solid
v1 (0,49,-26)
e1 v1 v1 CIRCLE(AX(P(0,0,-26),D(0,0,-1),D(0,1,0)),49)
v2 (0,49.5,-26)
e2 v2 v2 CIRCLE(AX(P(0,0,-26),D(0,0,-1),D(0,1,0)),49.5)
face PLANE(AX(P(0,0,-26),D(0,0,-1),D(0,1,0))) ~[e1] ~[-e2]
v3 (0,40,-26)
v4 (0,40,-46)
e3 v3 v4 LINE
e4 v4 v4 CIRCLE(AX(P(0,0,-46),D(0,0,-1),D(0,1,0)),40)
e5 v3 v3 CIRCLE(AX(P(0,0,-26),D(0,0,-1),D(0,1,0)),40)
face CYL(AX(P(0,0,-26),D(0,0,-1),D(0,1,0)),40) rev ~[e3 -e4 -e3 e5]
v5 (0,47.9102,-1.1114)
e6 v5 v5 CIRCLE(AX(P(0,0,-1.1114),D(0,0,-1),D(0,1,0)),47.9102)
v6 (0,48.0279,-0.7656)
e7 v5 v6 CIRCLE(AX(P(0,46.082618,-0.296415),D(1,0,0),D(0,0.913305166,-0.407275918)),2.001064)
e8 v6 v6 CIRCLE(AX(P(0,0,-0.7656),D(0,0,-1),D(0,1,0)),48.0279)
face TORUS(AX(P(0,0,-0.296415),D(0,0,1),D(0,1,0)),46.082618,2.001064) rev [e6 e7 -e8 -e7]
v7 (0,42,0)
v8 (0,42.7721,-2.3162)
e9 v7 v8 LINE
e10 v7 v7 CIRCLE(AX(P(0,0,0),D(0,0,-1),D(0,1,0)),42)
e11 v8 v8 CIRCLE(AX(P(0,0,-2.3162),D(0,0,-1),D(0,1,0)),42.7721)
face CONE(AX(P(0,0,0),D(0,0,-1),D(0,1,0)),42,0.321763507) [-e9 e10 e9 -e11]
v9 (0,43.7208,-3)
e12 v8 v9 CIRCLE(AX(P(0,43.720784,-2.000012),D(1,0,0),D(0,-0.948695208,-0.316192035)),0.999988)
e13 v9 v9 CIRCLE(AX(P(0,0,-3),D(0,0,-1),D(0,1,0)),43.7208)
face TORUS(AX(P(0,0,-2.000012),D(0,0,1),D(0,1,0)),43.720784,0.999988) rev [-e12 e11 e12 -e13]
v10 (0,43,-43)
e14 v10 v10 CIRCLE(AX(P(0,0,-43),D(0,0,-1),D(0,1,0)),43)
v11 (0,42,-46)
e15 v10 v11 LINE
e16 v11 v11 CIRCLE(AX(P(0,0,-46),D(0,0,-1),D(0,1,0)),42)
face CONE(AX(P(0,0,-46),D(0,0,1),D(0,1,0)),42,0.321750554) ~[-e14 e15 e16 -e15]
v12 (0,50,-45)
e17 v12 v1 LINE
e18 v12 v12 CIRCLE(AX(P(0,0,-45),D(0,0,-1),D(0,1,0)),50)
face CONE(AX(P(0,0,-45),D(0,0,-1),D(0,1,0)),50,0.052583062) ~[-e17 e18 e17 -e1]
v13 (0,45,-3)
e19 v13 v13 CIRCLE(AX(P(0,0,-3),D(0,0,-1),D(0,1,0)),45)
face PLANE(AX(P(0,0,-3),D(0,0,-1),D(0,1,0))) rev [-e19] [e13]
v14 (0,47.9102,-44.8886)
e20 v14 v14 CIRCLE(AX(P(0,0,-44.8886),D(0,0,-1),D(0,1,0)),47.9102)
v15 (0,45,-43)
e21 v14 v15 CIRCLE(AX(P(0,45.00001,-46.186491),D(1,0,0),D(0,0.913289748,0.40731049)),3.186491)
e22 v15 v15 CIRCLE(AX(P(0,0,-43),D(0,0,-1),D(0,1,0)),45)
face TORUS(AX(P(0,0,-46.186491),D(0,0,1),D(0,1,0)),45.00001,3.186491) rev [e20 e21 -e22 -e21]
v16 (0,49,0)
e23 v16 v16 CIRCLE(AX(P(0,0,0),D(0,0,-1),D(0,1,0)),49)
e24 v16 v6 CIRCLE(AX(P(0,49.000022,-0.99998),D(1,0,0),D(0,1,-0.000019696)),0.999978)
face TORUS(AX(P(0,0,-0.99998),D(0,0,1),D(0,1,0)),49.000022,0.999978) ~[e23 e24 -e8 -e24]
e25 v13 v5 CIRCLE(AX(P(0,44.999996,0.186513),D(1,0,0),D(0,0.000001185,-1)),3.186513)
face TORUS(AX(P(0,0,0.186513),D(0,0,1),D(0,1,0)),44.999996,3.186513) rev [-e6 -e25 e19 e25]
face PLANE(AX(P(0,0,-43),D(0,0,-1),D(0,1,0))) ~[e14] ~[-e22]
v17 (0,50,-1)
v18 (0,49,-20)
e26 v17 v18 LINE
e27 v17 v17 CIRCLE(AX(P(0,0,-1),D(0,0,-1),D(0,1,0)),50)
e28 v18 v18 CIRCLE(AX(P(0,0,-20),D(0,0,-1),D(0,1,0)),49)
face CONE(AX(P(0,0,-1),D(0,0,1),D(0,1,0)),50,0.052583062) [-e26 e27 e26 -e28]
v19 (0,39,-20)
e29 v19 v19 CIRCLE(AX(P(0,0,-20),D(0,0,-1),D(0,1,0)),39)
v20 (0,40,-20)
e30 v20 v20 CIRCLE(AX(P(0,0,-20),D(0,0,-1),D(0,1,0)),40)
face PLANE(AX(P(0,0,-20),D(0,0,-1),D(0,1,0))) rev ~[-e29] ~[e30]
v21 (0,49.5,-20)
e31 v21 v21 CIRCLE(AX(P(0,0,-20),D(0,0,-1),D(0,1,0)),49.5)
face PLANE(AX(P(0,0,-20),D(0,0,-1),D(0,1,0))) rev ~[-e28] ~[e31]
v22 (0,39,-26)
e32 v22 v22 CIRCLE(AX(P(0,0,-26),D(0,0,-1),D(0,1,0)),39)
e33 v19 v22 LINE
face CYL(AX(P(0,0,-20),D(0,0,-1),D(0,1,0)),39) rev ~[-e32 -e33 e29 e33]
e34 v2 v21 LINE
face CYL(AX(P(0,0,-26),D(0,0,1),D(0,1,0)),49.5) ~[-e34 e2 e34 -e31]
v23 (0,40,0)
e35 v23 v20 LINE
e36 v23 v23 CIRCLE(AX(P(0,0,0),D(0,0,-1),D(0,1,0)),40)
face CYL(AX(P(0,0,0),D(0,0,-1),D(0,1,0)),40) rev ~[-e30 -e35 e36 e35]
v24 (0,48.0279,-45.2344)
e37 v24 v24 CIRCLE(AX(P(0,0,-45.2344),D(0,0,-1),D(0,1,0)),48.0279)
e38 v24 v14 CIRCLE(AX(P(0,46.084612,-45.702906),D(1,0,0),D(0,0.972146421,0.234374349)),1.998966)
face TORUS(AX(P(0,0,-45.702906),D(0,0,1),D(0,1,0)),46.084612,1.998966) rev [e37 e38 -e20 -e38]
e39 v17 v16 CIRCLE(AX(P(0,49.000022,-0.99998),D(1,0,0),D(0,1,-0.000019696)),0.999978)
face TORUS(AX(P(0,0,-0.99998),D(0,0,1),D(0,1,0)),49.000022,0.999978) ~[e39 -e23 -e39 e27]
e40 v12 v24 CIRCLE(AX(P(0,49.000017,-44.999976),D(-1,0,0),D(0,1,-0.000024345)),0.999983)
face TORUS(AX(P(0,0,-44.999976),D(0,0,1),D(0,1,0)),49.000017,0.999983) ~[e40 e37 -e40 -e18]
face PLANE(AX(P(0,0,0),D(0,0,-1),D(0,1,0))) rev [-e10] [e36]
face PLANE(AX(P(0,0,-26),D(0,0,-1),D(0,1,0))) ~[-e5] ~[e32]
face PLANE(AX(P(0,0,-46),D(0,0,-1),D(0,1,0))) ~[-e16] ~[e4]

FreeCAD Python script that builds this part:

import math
import FreeCAD as App
import Part
import Sketcher
Q = App.Units.Quantity

doc = App.newDocument("Part")
body = doc.addObject("PartDesign::Body", "Body")

# Sketch on YZ plane
sketch1 = body.newObject("Sketcher::SketchObject", "Sketch")
sketch1.AttachmentSupport = (doc.getObject("YZ_Plane"), [""])
sketch1.MapMode = "FlatFace"
sketch1.addGeometry(Part.LineSegment(App.Vector(42, 0, 0), App.Vector(40, 0, 0)), False)
sketch1.addGeometry(Part.LineSegment(App.Vector(40, 0, 0), App.Vector(40, -20, 0)), False)
sketch1.addGeometry(Part.LineSegment(App.Vector(40, -20, 0), App.Vector(39, -20, 0)), False)
sketch1.addGeometry(Part.LineSegment(App.Vector(39, -20, 0), App.Vector(39, -26, 0)), False)
sketch1.addGeometry(Part.LineSegment(App.Vector(39, -26, 0), App.Vector(40, -26, 0)), False)
sketch1.addGeometry(Part.LineSegment(App.Vector(40, -26, 0), App.Vector(40, -46, 0)), False)
sketch1.addGeometry(Part.LineSegment(App.Vector(40, -46, 0), App.Vector(42, -46, 0)), False)
sketch1.addGeometry(Part.LineSegment(App.Vector(42, -46, 0), App.Vector(43, -43, 0)), False)
sketch1.addGeometry(Part.LineSegment(App.Vector(43, -43, 0), App.Vector(45, -43, 0)), False)
sketch1.addGeometry(Part.ArcOfCircle(Part.Circle(App.Vector(45, -46.1865, 0), App.Vector(0, 0, 1), 3.186504), math.radians(24.036063), math.radians(90)), False)
sketch1.addGeometry(Part.ArcOfCircle(Part.Circle(App.Vector(46.084612, -45.702906, 0), App.Vector(0, 0, 1), 1.998966), math.radians(13.554746), math.radians(24.039338)), False)
sketch1.addGeometry(Part.ArcOfCircle(Part.Circle(App.Vector(49, -45, 0), App.Vector(0, 0, 1), 0.999961), math.radians(-166.443202), math.radians(0)), False)
sketch1.addGeometry(Part.LineSegment(App.Vector(50, -45, 0), App.Vector(49, -26, 0)), False)
sketch1.addGeometry(Part.LineSegment(App.Vector(49, -26, 0), App.Vector(49.5, -26, 0)), False)
sketch1.addGeometry(Part.LineSegment(App.Vector(49.5, -26, 0), App.Vector(49.5, -20, 0)), False)
sketch1.addGeometry(Part.LineSegment(App.Vector(49.5, -20, 0), App.Vector(49, -20, 0)), False)
sketch1.addGeometry(Part.LineSegment(App.Vector(49, -20, 0), App.Vector(50, -1, 0)), False)
sketch1.addGeometry(Part.ArcOfCircle(Part.Circle(App.Vector(49, -1, 0), App.Vector(0, 0, 1), 1), math.radians(0), math.radians(166.443202)), False)
sketch1.addGeometry(Part.ArcOfCircle(Part.Circle(App.Vector(46.082618, -0.296415, 0), App.Vector(0, 0, 1), 2.001064), math.radians(-24.033827), math.radians(-13.560257)), False)
sketch1.addGeometry(Part.ArcOfCircle(Part.Circle(App.Vector(45, 0.1865, 0), App.Vector(0, 0, 1), 3.1865), math.radians(-90), math.radians(-24.036063)), False)
sketch1.addGeometry(Part.LineSegment(App.Vector(45, -3, 0), App.Vector(43.7208, -3, 0)), False)
sketch1.addGeometry(Part.ArcOfCircle(Part.Circle(App.Vector(43.7208, -2, 0), App.Vector(0, 0, 1), 1.000007), math.radians(-161.566863), math.radians(-90)), False)
sketch1.addGeometry(Part.LineSegment(App.Vector(42.7721, -2.3162, 0), App.Vector(42, 0, 0)), False)
sketch1.addConstraint(Sketcher.Constraint("Coincident", 0, 2, 1, 1))
sketch1.addConstraint(Sketcher.Constraint("Coincident", 1, 2, 2, 1))
sketch1.addConstraint(Sketcher.Constraint("Coincident", 2, 2, 3, 1))
sketch1.addConstraint(Sketcher.Constraint("Coincident", 3, 2, 4, 1))
sketch1.addConstraint(Sketcher.Constraint("Coincident", 4, 2, 5, 1))
sketch1.addConstraint(Sketcher.Constraint("Coincident", 5, 2, 6, 1))
sketch1.addConstraint(Sketcher.Constraint("Coincident", 6, 2, 7, 1))
sketch1.addConstraint(Sketcher.Constraint("Coincident", 7, 2, 8, 1))
sketch1.addConstraint(Sketcher.Constraint("Coincident", 8, 2, 9, 2))
sketch1.addConstraint(Sketcher.Constraint("Coincident", 9, 1, 10, 2))
sketch1.addConstraint(Sketcher.Constraint("Coincident", 10, 1, 11, 1))
sketch1.addConstraint(Sketcher.Constraint("Coincident", 11, 2, 12, 1))
sketch1.addConstraint(Sketcher.Constraint("Coincident", 12, 2, 13, 1))
sketch1.addConstraint(Sketcher.Constraint("Coincident", 13, 2, 14, 1))
sketch1.addConstraint(Sketcher.Constraint("Coincident", 14, 2, 15, 1))
sketch1.addConstraint(Sketcher.Constraint("Coincident", 15, 2, 16, 1))
sketch1.addConstraint(Sketcher.Constraint("Coincident", 16, 2, 17, 1))
sketch1.addConstraint(Sketcher.Constraint("Coincident", 17, 2, 18, 2))
sketch1.addConstraint(Sketcher.Constraint("Coincident", 18, 1, 19, 2))
sketch1.addConstraint(Sketcher.Constraint("Coincident", 19, 1, 20, 1))
sketch1.addConstraint(Sketcher.Constraint("Coincident", 20, 2, 21, 2))
sketch1.addConstraint(Sketcher.Constraint("Coincident", 21, 1, 22, 1))
sketch1.addConstraint(Sketcher.Constraint("Coincident", 22, 2, 0, 1))
sketch1.addConstraint(Sketcher.Constraint("Horizontal", 0))
sketch1.addConstraint(Sketcher.Constraint("Vertical", 1))
sketch1.addConstraint(Sketcher.Constraint("Horizontal", 2))
sketch1.addConstraint(Sketcher.Constraint("Vertical", 3))
sketch1.addConstraint(Sketcher.Constraint("Horizontal", 4))
sketch1.addConstraint(Sketcher.Constraint("Vertical", 5))
sketch1.addConstraint(Sketcher.Constraint("Horizontal", 6))
sketch1.addConstraint(Sketcher.Constraint("Horizontal", 8))
sketch1.addConstraint(Sketcher.Constraint("Horizontal", 13))
sketch1.addConstraint(Sketcher.Constraint("Vertical", 14))
sketch1.addConstraint(Sketcher.Constraint("Horizontal", 15))
sketch1.addConstraint(Sketcher.Constraint("Horizontal", 20))
sketch1.addConstraint(Sketcher.Constraint("PointOnObject", 0, 2, -1))
sketch1.addConstraint(Sketcher.Constraint("Radius", 11, Q("1 mm")))
sketch1.addConstraint(Sketcher.Constraint("Radius", 17, Q("1 mm")))
sketch1.addConstraint(Sketcher.Constraint("Radius", 21, Q("1 mm")))
sketch1.addConstraint(Sketcher.Constraint("DistanceX", 0, 2, 0, 1, Q("2 mm")))
sketch1.addConstraint(Sketcher.Constraint("DistanceX", 2, 2, 2, 1, Q("1 mm")))
sketch1.addConstraint(Sketcher.Constraint("DistanceX", 4, 1, 4, 2, Q("1 mm")))
sketch1.addConstraint(Sketcher.Constraint("DistanceX", 6, 1, 6, 2, Q("2 mm")))
sketch1.addConstraint(Sketcher.Constraint("DistanceX", 8, 1, 8, 2, Q("2 mm")))
sketch1.addConstraint(Sketcher.Constraint("DistanceY", 3, 2, 3, 1, Q("6 mm")))
sketch1.addConstraint(Sketcher.Constraint("DistanceY", 14, 1, 14, 2, Q("6 mm")))
sketch1.addConstraint(Sketcher.Constraint("DistanceY", 17, 3, -1, 1, Q("1 mm")))
sketch1.addConstraint(Sketcher.Constraint("DistanceY", 21, 3, -1, 1, Q("2 mm")))
sketch1.addConstraint(Sketcher.Constraint("DistanceX", -1, 1, 0, 2, Q("40 mm")))
sketch1.addConstraint(Sketcher.Constraint("DistanceY", 5, 2, -1, 1, Q("46 mm")))
sketch1.addConstraint(Sketcher.Constraint("DistanceY", 16, 2, -1, 1, Q("1 mm")))
sketch1.addConstraint(Sketcher.Constraint("DistanceX", 2, 2, 19, 3, Q("6 mm")))
sketch1.addConstraint(Sketcher.Constraint("DistanceX", 3, 2, 9, 3, Q("6 mm")))
sketch1.addConstraint(Sketcher.Constraint("DistanceX", 3, 2, 11, 3, Q("10 mm")))
sketch1.addConstraint(Sketcher.Constraint("DistanceY", 5, 2, 11, 3, Q("1 mm")))
sketch1.addConstraint(Sketcher.Constraint("DistanceX", 6, 2, 7, 2, Q("1 mm")))
sketch1.addConstraint(Sketcher.Constraint("DistanceY", 6, 2, 7, 2, Q("3 mm")))
sketch1.addConstraint(Sketcher.Constraint("DistanceX", 3, 2, 12, 2, Q("10 mm")))
sketch1.addConstraint(Sketcher.Constraint("DistanceY", 12, 2, 1, 2, Q("6 mm")))
sketch1.addConstraint(Sketcher.Constraint("DistanceX", 2, 2, 15, 2, Q("10 mm")))
sketch1.addConstraint(Sketcher.Constraint("DistanceX", 0, 2, 16, 2, Q("10 mm")))
sketch1.addConstraint(Sketcher.Constraint("DistanceY", 1, 2, 1, 1, Q("20 mm")))
sketch1.addConstraint(Sketcher.Constraint("DistanceX", 13, 1, 13, 2, Q("0.5 mm")))
sketch1.addConstraint(Sketcher.Constraint("DistanceY", 11, 2, -1, 1, Q("45 mm")))
sketch1.addConstraint(Sketcher.Constraint("DistanceX", -1, 1, 19, 1, Q("45 mm")))
sketch1.addConstraint(Sketcher.Constraint("Radius", 10, Q("1.999 mm")))
sketch1.addConstraint(Sketcher.Constraint("Radius", 18, Q("2.001 mm")))
sketch1.addConstraint(Sketcher.Constraint("Radius", 9, Q("3.1865 mm")))
sketch1.addConstraint(Sketcher.Constraint("Radius", 19, Q("3.1865 mm")))
sketch1.addConstraint(Sketcher.Constraint("DistanceX", 20, 2, 20, 1, Q("1.2792 mm")))
sketch1.addConstraint(Sketcher.Constraint("DistanceX", -1, 1, 10, 1, Q("48.028 mm")))
sketch1.addConstraint(Sketcher.Constraint("DistanceX", -1, 1, 21, 1, Q("42.772 mm")))
sketch1.addConstraint(Sketcher.Constraint("DistanceY", 9, 3, 9, 1, Q("1.298 mm")))
sketch1.addConstraint(Sketcher.Constraint("DistanceY", 17, 2, 19, 3, Q("0.952 mm")))
sketch1.addConstraint(Sketcher.Constraint("DistanceX", 21, 3, 17, 2, Q("4.307 mm")))
sketch1.addConstraint(Sketcher.Constraint("DistanceY", 18, 1, 18, 3, Q("0.815 mm")))
revolution = body.newObject("PartDesign::Revolution", "Revolution")
revolution.Profile = sketch1
revolution.ReferenceAxis = (sketch1, ["V_Axis"])
revolution.Angle = 360

doc.recompute()
